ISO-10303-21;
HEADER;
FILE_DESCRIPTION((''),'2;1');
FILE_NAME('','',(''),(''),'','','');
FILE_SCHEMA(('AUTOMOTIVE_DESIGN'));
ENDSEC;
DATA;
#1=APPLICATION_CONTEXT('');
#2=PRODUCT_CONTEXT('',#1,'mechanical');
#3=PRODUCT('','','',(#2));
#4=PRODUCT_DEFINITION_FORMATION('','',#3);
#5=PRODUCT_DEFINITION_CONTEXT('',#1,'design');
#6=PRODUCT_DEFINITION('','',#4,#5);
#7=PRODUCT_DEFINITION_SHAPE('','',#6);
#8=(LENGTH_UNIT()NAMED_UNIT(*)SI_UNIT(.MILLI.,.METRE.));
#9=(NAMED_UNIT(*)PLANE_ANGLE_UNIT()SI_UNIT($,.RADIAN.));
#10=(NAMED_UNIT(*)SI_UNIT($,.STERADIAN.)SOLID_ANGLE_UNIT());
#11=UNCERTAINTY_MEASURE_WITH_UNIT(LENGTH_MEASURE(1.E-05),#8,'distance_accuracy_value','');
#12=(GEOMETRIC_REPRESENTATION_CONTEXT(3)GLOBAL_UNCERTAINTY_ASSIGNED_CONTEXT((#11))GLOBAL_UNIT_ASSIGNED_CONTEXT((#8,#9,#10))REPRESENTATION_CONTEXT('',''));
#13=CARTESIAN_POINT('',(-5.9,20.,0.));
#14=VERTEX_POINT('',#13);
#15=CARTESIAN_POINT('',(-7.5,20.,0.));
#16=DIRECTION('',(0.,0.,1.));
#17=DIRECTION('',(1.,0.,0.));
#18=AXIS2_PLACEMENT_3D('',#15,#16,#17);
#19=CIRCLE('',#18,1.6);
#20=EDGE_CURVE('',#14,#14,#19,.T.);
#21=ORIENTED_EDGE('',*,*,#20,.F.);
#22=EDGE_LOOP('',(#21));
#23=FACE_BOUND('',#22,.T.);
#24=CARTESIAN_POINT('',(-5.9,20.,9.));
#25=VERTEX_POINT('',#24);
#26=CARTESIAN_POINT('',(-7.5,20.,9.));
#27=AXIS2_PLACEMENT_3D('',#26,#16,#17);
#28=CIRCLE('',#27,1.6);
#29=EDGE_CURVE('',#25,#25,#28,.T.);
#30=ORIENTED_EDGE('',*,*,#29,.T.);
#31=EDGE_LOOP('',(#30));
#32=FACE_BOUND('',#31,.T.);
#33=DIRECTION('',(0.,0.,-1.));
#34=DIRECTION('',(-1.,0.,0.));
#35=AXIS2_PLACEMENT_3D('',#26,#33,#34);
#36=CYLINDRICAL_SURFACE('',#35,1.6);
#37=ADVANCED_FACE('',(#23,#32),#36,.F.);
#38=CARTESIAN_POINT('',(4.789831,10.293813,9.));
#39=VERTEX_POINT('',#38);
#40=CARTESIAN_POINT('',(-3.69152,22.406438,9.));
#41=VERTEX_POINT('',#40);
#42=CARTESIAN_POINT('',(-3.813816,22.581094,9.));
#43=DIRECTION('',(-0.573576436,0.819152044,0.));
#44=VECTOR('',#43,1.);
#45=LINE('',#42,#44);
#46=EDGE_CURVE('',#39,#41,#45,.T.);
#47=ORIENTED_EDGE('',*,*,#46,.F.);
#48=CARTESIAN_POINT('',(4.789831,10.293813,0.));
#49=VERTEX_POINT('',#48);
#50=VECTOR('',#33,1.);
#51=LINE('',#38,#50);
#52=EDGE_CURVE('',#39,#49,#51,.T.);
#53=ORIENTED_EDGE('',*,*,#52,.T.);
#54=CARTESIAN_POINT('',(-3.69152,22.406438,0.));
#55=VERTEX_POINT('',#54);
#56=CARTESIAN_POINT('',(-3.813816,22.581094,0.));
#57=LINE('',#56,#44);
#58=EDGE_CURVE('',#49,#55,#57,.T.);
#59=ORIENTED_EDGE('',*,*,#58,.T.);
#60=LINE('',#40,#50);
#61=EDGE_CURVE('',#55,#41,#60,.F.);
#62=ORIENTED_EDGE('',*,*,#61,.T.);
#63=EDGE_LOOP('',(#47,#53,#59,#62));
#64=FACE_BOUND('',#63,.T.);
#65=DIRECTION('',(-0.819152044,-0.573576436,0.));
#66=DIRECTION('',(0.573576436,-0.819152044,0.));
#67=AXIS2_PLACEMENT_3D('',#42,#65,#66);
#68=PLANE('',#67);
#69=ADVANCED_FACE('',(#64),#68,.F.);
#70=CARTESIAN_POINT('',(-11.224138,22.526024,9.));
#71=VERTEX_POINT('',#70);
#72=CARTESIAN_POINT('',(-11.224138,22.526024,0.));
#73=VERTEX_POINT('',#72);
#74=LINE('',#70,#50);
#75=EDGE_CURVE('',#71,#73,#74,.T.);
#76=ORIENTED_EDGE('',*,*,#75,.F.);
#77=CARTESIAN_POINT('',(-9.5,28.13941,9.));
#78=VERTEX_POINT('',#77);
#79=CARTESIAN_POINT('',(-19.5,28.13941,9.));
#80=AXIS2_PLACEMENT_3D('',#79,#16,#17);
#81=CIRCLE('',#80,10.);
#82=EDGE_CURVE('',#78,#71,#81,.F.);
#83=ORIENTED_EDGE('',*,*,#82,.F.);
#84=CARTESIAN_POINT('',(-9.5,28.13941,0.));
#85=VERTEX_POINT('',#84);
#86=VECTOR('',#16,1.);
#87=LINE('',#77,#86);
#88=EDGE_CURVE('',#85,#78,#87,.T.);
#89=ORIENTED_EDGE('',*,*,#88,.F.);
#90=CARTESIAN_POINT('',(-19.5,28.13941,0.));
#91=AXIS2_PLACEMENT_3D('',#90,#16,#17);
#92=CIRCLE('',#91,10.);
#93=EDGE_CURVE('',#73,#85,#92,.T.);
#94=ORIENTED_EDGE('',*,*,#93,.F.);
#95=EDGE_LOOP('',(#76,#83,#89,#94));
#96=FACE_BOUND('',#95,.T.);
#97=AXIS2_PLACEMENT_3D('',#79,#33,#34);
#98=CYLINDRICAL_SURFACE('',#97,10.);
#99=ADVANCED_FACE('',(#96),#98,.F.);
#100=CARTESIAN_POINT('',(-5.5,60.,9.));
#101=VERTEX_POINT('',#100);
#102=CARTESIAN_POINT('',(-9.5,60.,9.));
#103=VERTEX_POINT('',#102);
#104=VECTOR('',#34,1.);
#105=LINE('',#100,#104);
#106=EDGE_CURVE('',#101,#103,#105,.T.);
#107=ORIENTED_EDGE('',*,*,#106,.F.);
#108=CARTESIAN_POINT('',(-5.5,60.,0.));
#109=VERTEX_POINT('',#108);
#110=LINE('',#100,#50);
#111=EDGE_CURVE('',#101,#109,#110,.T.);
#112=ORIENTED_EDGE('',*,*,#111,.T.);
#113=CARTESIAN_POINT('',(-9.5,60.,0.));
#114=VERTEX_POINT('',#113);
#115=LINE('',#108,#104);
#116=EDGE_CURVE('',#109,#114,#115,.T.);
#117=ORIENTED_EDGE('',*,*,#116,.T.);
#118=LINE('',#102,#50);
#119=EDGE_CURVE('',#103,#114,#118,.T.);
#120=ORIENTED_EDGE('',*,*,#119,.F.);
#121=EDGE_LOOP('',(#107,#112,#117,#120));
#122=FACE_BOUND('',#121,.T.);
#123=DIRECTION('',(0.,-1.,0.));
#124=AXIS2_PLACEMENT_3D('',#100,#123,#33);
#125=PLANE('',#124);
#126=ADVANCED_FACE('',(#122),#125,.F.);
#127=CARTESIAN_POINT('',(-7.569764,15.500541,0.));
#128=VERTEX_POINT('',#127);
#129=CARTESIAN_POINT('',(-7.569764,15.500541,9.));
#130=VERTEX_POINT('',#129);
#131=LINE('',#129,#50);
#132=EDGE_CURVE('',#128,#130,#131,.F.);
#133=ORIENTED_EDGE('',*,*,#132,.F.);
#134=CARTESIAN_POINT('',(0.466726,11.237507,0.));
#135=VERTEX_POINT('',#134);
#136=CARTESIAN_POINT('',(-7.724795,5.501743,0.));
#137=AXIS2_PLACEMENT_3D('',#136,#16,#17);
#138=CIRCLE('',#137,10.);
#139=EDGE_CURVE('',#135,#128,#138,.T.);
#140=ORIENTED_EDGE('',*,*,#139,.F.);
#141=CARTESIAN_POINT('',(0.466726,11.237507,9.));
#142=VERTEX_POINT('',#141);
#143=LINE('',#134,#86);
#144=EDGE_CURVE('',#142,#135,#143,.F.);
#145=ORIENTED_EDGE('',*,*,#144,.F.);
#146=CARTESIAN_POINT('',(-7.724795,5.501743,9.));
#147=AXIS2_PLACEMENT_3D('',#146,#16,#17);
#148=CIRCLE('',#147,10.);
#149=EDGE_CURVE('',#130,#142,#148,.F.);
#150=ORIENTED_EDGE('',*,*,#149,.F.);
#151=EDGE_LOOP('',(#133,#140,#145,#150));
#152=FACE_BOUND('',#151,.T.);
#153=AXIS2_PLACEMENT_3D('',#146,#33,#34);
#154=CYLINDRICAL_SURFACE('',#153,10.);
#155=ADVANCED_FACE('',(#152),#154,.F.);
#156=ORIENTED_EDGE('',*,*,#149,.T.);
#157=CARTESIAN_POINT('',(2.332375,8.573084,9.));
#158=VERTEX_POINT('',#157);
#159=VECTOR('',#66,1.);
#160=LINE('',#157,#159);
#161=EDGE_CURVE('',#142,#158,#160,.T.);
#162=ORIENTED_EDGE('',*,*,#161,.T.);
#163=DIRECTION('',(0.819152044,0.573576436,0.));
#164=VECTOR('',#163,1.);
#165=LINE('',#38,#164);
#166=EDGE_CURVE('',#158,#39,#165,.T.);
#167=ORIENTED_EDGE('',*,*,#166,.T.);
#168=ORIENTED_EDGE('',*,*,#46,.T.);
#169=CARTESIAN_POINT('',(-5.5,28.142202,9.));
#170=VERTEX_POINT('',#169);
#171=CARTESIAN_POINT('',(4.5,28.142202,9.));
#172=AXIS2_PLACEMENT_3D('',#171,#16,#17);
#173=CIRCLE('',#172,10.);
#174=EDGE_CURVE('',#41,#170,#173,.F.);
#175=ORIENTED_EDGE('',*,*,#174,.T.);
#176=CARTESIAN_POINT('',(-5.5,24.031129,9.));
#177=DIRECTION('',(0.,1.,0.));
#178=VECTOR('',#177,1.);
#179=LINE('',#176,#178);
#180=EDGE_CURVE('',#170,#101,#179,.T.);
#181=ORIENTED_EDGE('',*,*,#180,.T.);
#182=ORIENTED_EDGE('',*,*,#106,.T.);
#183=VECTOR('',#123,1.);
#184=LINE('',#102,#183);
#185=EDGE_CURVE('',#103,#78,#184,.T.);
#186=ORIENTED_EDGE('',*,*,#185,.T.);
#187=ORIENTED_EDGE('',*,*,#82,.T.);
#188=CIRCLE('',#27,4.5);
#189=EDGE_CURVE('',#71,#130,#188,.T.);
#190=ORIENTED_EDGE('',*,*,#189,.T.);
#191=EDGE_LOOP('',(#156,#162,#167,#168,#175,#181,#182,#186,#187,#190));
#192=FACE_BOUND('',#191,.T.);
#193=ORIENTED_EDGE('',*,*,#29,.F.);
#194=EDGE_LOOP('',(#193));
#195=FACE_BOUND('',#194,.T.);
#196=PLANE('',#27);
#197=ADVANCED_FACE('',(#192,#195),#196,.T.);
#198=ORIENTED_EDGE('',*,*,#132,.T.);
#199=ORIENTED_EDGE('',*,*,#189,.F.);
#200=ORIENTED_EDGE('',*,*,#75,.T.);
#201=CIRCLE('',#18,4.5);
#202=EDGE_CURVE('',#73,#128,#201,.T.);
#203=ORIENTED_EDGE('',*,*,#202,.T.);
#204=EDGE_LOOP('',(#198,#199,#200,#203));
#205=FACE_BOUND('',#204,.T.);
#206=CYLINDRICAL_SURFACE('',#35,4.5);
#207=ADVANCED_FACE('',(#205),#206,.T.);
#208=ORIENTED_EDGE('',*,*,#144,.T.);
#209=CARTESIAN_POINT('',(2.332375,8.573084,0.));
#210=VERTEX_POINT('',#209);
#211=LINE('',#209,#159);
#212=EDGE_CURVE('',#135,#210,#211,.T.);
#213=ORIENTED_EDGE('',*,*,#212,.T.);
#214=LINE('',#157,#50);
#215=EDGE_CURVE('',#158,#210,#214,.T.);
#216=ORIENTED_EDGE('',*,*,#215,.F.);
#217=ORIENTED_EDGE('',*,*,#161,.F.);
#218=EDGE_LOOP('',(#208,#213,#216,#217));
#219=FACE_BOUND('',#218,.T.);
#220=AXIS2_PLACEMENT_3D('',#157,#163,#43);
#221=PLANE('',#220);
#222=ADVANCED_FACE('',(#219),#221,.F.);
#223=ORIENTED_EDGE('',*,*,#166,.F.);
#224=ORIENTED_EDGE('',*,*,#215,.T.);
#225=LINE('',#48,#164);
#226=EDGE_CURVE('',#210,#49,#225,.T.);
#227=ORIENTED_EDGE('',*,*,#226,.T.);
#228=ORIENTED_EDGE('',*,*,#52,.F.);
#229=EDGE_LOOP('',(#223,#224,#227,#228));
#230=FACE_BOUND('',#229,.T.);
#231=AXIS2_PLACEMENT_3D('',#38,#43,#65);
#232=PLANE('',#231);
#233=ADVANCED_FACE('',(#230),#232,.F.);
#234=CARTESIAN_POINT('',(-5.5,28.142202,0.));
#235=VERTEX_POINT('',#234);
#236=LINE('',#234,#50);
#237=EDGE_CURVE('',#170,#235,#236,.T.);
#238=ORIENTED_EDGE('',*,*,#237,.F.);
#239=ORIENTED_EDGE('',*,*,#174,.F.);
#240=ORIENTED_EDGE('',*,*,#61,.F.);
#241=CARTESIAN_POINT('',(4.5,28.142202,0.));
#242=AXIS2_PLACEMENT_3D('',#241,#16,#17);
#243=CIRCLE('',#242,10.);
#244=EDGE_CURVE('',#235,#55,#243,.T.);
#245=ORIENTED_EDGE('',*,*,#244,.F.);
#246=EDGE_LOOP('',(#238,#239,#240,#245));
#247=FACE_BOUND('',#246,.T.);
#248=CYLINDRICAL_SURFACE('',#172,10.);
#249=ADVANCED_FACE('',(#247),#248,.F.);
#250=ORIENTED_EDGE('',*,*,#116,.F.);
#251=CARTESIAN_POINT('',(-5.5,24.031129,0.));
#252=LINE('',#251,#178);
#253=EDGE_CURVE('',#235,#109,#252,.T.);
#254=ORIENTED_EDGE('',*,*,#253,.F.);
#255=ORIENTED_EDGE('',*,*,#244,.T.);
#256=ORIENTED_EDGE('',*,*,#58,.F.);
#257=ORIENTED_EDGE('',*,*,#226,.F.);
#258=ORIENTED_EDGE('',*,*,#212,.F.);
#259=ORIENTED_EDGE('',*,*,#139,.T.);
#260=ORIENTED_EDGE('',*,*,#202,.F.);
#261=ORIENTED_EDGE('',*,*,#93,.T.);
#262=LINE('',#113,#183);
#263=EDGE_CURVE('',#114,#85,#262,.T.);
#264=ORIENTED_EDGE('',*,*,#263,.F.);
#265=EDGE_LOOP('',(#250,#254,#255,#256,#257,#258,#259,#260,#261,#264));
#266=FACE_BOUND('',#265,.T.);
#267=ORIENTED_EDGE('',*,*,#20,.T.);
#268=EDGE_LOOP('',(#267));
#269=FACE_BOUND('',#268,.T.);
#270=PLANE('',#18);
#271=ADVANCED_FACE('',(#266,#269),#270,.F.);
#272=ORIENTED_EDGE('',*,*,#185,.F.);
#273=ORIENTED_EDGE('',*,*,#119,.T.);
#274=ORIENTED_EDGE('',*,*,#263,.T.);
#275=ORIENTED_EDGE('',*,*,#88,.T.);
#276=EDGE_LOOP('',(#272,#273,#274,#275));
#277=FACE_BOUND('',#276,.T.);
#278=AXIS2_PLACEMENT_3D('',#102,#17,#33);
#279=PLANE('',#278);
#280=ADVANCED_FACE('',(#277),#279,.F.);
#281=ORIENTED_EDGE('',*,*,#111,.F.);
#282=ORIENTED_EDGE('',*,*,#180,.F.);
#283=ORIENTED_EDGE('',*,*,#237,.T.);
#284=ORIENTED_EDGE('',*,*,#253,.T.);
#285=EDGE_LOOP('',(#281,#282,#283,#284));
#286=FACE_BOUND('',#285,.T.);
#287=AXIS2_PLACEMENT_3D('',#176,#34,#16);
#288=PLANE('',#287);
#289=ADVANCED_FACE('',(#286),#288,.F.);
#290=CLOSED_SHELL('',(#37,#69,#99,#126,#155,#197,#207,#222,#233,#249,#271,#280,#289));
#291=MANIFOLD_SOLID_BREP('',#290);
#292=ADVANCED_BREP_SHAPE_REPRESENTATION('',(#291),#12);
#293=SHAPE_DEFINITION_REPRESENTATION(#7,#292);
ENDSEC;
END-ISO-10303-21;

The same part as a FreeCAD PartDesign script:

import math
import FreeCAD as App
import Part
import Sketcher
from FreeCAD import Vector
Q = App.Units.Quantity


def edges_at(feature, points):
    """Names of the edges that pass closest to the given points."""
    edges = feature.Shape.Edges
    near = lambda p: min(range(len(edges)), key=lambda i: edges[i].distToShape(Part.Vertex(*p))[0])
    return sorted({f"Edge{near(p) + 1}" for p in points})

doc = App.newDocument("Part")
body = doc.addObject("PartDesign::Body", "Body")

sketch1 = body.newObject("Sketcher::SketchObject", "Sketch")
sketch1.AttachmentSupport = (doc.getObject("XY_Plane"), [""])
sketch1.MapMode = "FlatFace"
sketch1.addGeometry([
    Part.LineSegment(Vector(4.8, 10.3, 0), Vector(-3.8, 22.6, 0)),
    Part.ArcOfCircle(Part.Circle(Vector(-7.5, 20, 0), Vector(0, 0, 1), 4.5), math.radians(35), math.radians(64)),
    Part.LineSegment(Vector(-5.5, 24, 0), Vector(-5.5, 60, 0)),
    Part.LineSegment(Vector(-5.5, 60, 0), Vector(-9.5, 60, 0)),
    Part.LineSegment(Vector(-9.5, 60, 0), Vector(-9.5, 24, 0)),
    Part.ArcOfCircle(Part.Circle(Vector(-7.5, 20, 0), Vector(0, 0, 1), 4.5), math.radians(116), math.radians(324)),
    Part.LineSegment(Vector(-3.8, 17.4, 0), Vector(2.3, 8.6, 0)),
    Part.LineSegment(Vector(2.3, 8.6, 0), Vector(4.8, 10.3, 0)),
    Part.Circle(Vector(-7.5, 20, 0), Vector(0, 0, 1), 1.6),
], False)
sketch1.addConstraint([
    Sketcher.Constraint("Tangent", 0, 2, 1, 1),
    Sketcher.Constraint("Coincident", 1, 2, 2, 1),
    Sketcher.Constraint("Coincident", 2, 2, 3, 1),
    Sketcher.Constraint("Coincident", 3, 2, 4, 1),
    Sketcher.Constraint("Coincident", 4, 2, 5, 1),
    Sketcher.Constraint("Coincident", 5, 2, 6, 1),
    Sketcher.Constraint("Coincident", 6, 2, 7, 1),
    Sketcher.Constraint("Coincident", 7, 2, 0, 1),
    Sketcher.Constraint("Vertical", 2),
    Sketcher.Constraint("Horizontal", 3),
    Sketcher.Constraint("Vertical", 4),
    Sketcher.Constraint("Coincident", 5, 3, 1, 3),
    Sketcher.Constraint("Coincident", 8, 3, 1, 3),
    Sketcher.Constraint("Equal", 1, 5),
    Sketcher.Constraint("Parallel", 0, 6),
    Sketcher.Constraint("Perpendicular", 6, 7),
    Sketcher.Constraint("Horizontal", 1, 2, 4, 2),
    Sketcher.Constraint("Diameter", 8, 3.2),
    Sketcher.Constraint("Radius", 1, 4.5),
    Sketcher.Constraint("DistanceX", 3, 2, 3, 1, 4.0),
    Sketcher.Constraint("Angle", 0, Q("125 deg")),
    Sketcher.Constraint("Distance", 0, 15.0),
    Sketcher.Constraint("Distance", 7, 3.0),
    Sketcher.Constraint("DistanceY", -1, 1, 1, 3, 20.0),
    Sketcher.Constraint("DistanceY", -1, 1, 2, 2, 60.0),
    Sketcher.Constraint("DistanceX", 1, 3, -1, 1, 7.5),
])
pad1 = body.newObject("PartDesign::Pad", "Pad")
pad1.Profile = sketch1
pad1.Length = 9
doc.recompute()

fillet = body.newObject("PartDesign::Fillet", "Fillet")
fillet.Base = (pad1, edges_at(pad1, [(-3.838, 17.385, 4.5), (-9.5, 24.031, 4.5), (-5.5, 24.031, 4.5)]))
fillet.Radius = 10

doc.recompute()
